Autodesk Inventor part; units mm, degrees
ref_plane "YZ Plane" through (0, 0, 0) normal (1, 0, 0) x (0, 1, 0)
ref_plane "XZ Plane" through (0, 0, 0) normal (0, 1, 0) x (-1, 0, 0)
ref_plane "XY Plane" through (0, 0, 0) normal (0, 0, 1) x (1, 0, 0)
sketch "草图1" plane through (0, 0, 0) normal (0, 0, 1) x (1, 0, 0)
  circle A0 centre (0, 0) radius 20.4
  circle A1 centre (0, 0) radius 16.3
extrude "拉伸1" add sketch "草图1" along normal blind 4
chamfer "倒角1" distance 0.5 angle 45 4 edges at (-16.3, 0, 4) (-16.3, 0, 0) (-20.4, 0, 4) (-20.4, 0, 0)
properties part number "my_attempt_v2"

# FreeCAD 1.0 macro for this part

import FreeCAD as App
import Part
import Sketcher
from FreeCAD import Vector
Q = App.Units.Quantity


def edges_at(feature, points):
    """Names of the edges that pass closest to the given points."""
    edges = feature.Shape.Edges
    near = lambda p: min(range(len(edges)), key=lambda i: edges[i].distToShape(Part.Vertex(*p))[0])
    return sorted({f"Edge{near(p) + 1}" for p in points})

doc = App.newDocument("Part")
body = doc.addObject("PartDesign::Body", "Body")

# Sketch on XY plane
sketch1 = doc.addObject("Sketcher::SketchObject", "Sketch")
body.addObject(sketch1)
sketch1.AttachmentSupport = (doc.XY_Plane, [""])
sketch1.MapMode = "FlatFace"
sketch1.addGeometry([
    Part.Circle(Vector(0, 0, 0), Vector(0, 0, 1), 20.4),
    Part.Circle(Vector(0, 0, 0), Vector(0, 0, 1), 16.3),
], False)
sketch1.addConstraint([
    Sketcher.Constraint("Coincident", 0, 3, -1, 1),
    Sketcher.Constraint("Coincident", 1, 3, -1, 1),
    Sketcher.Constraint("Diameter", 0, Q("40.8 mm")),
    Sketcher.Constraint("Diameter", 1, Q("32.6 mm")),
])
pad1 = doc.addObject("PartDesign::Pad", "Pad")
body.addObject(pad1)
pad1.Profile = sketch1
pad1.Length = 4
doc.recompute()

chamfer = doc.addObject("PartDesign::Chamfer", "Chamfer")
body.addObject(chamfer)
chamfer.Base = (pad1, edges_at(pad1, [
    (-16.3, 0, 4),
    (-16.3, 0, 0),
    (-20.4, 0, 4),
    (-20.4, 0, 0),
]))
chamfer.Size = 0.5

doc.recompute()
